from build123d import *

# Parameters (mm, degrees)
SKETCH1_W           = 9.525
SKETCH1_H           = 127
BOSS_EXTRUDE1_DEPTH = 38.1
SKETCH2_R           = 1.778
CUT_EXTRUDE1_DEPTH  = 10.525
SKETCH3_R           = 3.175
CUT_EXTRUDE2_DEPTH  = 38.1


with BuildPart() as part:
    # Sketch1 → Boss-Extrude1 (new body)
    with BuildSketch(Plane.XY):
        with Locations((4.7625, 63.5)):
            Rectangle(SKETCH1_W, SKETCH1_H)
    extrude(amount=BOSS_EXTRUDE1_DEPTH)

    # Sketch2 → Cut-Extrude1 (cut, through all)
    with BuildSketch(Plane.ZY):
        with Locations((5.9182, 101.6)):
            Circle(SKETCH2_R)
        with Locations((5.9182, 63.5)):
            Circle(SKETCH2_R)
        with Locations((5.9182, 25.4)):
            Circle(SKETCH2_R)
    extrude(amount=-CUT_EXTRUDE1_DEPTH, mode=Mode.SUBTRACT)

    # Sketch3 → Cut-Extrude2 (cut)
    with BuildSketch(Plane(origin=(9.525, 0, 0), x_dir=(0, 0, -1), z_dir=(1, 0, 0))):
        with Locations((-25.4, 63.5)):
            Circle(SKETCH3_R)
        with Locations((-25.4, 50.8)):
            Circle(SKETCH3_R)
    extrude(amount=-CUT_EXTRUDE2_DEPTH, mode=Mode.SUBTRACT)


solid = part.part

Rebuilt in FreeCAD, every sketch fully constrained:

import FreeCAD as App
import Part
import Sketcher
Q = App.Units.Quantity

doc = App.newDocument("Part")
body = doc.addObject("PartDesign::Body", "Body")

# Sketch on XY plane
sketch1 = body.newObject("Sketcher::SketchObject", "Sketch")
sketch1.AttachmentSupport = (doc.getObject("XY_Plane"), [""])
sketch1.MapMode = "FlatFace"
sketch1.addGeometry([
    Part.LineSegment(App.Vector(0, 127, 0), App.Vector(0, 0, 0)),
    Part.LineSegment(App.Vector(0, 0, 0), App.Vector(10, 0, 0)),
    Part.LineSegment(App.Vector(10, 0, 0), App.Vector(10, 127, 0)),
    Part.LineSegment(App.Vector(10, 127, 0), App.Vector(0, 127, 0)),
], False)
sketch1.addConstraint([
    Sketcher.Constraint("Coincident", 0, 2, 1, 1),
    Sketcher.Constraint("Coincident", 1, 2, 2, 1),
    Sketcher.Constraint("Coincident", 2, 2, 3, 1),
    Sketcher.Constraint("Coincident", 3, 2, 0, 1),
    Sketcher.Constraint("Vertical", 0),
    Sketcher.Constraint("Horizontal", 1),
    Sketcher.Constraint("Vertical", 2),
    Sketcher.Constraint("Horizontal", 3),
    Sketcher.Constraint("Coincident", 0, 2, -1, 1),
    Sketcher.Constraint("DistanceY", 0, 2, 0, 1, Q("5 in")),
    Sketcher.Constraint("DistanceX", 1, 1, 1, 2, Q("0.375 in")),
])
pad1 = body.newObject("PartDesign::Pad", "Pad")
pad1.Profile = sketch1
pad1.Length = Q("1.5 in")

# Sketch on YZ plane
sketch2 = body.newObject("Sketcher::SketchObject", "Sketch001")
sketch2.AttachmentSupport = (doc.getObject("YZ_Plane"), [""])
sketch2.MapMode = "FlatFace"
sketch2.addGeometry([
    Part.Circle(App.Vector(101.6, 5.9, 0), App.Vector(0, 0, 1), 1.8),
    Part.Circle(App.Vector(63.5, 5.9, 0), App.Vector(0, 0, 1), 1.8),
    Part.Circle(App.Vector(25.4, 5.9, 0), App.Vector(0, 0, 1), 1.8),
], False)
sketch2.addConstraint([
    Sketcher.Constraint("Equal", 0, 1),
    Sketcher.Constraint("Equal", 1, 2),
    Sketcher.Constraint("Horizontal", 0, 3, 1, 3),
    Sketcher.Constraint("Horizontal", 1, 3, 2, 3),
    Sketcher.Constraint("Diameter", 0, Q("0.14 in")),
    Sketcher.Constraint("DistanceX", -1, 1, 0, 3, Q("4 in")),
    Sketcher.Constraint("DistanceX", -1, 1, 2, 3, Q("1 in")),
    Sketcher.Constraint("DistanceX", -1, 1, 1, 3, Q("2.5 in")),
    Sketcher.Constraint("DistanceY", -1, 1, 0, 3, Q("0.233 in")),
])
pocket1 = body.newObject("PartDesign::Pocket", "Pocket")
pocket1.Profile = sketch2
pocket1.Type = "ThroughAll"
pocket1.Reversed = True

# Sketch on YZ plane
sketch3 = body.newObject("Sketcher::SketchObject", "Sketch002")
sketch3.AttachmentSupport = (doc.getObject("YZ_Plane"), [""])
sketch3.MapMode = "FlatFace"
sketch3.AttachmentOffset = App.Placement(App.Vector(0, 0, 0.375 * 25.4), App.Rotation())
sketch3.addGeometry([
    Part.Circle(App.Vector(63.5, 25.4, 0), App.Vector(0, 0, 1), 3.2),
    Part.Circle(App.Vector(50.8, 25.4, 0), App.Vector(0, 0, 1), 3.2),
], False)
sketch3.addConstraint([
    Sketcher.Constraint("Equal", 0, 1),
    Sketcher.Constraint("Horizontal", 0, 3, 1, 3),
    Sketcher.Constraint("Diameter", 0, Q("0.25 in")),
    Sketcher.Constraint("DistanceY", -1, 1, 0, 3, Q("1 in")),
    Sketcher.Constraint("DistanceX", -1, 1, 1, 3, Q("2 in")),
    Sketcher.Constraint("DistanceX", -1, 1, 0, 3, Q("2.5 in")),
])
pocket2 = body.newObject("PartDesign::Pocket", "Pocket001")
pocket2.Profile = sketch3
pocket2.Length = Q("1.5 in")

doc.recompute()
